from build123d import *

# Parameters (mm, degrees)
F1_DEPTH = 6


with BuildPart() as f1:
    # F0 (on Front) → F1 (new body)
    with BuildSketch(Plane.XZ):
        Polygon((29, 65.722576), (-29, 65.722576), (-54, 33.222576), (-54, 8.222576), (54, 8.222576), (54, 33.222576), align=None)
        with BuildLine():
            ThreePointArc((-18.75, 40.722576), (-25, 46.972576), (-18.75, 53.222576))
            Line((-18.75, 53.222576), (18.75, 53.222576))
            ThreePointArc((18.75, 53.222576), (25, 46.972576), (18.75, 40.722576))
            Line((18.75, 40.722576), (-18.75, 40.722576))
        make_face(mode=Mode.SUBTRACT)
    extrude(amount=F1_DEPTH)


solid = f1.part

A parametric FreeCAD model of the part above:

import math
import FreeCAD as App
import Part
import Sketcher
from FreeCAD import Vector

doc = App.newDocument("Part")
body = doc.addObject("PartDesign::Body", "Body")

sketch1 = body.newObject("Sketcher::SketchObject", "Sketch")
sketch1.AttachmentSupport = (doc.getObject("XZ_Plane"), [""])
sketch1.MapMode = "FlatFace"
sketch1.addGeometry([
    Part.LineSegment(Vector(29, 66, 0), Vector(-29, 66, 0)),
    Part.LineSegment(Vector(-29, 66, 0), Vector(-54, 33, 0)),
    Part.LineSegment(Vector(-54, 33, 0), Vector(-54, 8, 0)),
    Part.LineSegment(Vector(-54, 8, 0), Vector(54, 8, 0)),
    Part.LineSegment(Vector(54, 8, 0), Vector(54, 33, 0)),
    Part.LineSegment(Vector(54, 33, 0), Vector(29, 66, 0)),
    Part.LineSegment(Vector(19, 41, 0), Vector(-19, 41, 0)),
    Part.ArcOfCircle(Part.Circle(Vector(-19, 47, 0), Vector(0, 0, 1), 6), math.radians(90), math.radians(270)),
    Part.LineSegment(Vector(-19, 53, 0), Vector(19, 53, 0)),
    Part.ArcOfCircle(Part.Circle(Vector(19, 47, 0), Vector(0, 0, 1), 6), math.radians(-90), math.radians(90)),
], False)
sketch1.addConstraint([
    Sketcher.Constraint("Coincident", 0, 2, 1, 1),
    Sketcher.Constraint("Coincident", 1, 2, 2, 1),
    Sketcher.Constraint("Coincident", 2, 2, 3, 1),
    Sketcher.Constraint("Coincident", 3, 2, 4, 1),
    Sketcher.Constraint("Coincident", 4, 2, 5, 1),
    Sketcher.Constraint("Coincident", 5, 2, 0, 1),
    Sketcher.Constraint("Tangent", 6, 2, 7, 2),
    Sketcher.Constraint("Tangent", 7, 1, 8, 1),
    Sketcher.Constraint("Tangent", 8, 2, 9, 2),
    Sketcher.Constraint("Tangent", 9, 1, 6, 1),
    Sketcher.Constraint("Horizontal", 0),
    Sketcher.Constraint("Vertical", 2),
    Sketcher.Constraint("Horizontal", 3),
    Sketcher.Constraint("Vertical", 4),
    Sketcher.Constraint("Horizontal", 6),
    Sketcher.Constraint("Horizontal", 8),
    Sketcher.Constraint("Symmetric", 1, 2, 4, 2, -2),
    Sketcher.Constraint("Equal", 1, 5),
    Sketcher.Constraint("DistanceX", 0, 2, 0, 1, 58.0),
    Sketcher.Constraint("DistanceX", 3, 1, 3, 2, 108.0),
    Sketcher.Constraint("DistanceY", 2, 2, 2, 1, 25.0),
    Sketcher.Constraint("Radius", 7, 6.25),
    Sketcher.Constraint("DistanceX", 6, 2, 6, 1, 37.5),
    Sketcher.Constraint("DistanceY", 6, 2, 0, 2, 25.0),
    Sketcher.Constraint("DistanceY", 1, 2, 7, 1, 20.0),
    Sketcher.Constraint("DistanceX", 7, 3, -1, 1, 18.75),
    Sketcher.Constraint("DistanceY", -1, 1, 7, 3, 46.972576),
])
pad1 = body.newObject("PartDesign::Pad", "Pad")
pad1.Profile = sketch1
pad1.Length = 6

doc.recompute()
